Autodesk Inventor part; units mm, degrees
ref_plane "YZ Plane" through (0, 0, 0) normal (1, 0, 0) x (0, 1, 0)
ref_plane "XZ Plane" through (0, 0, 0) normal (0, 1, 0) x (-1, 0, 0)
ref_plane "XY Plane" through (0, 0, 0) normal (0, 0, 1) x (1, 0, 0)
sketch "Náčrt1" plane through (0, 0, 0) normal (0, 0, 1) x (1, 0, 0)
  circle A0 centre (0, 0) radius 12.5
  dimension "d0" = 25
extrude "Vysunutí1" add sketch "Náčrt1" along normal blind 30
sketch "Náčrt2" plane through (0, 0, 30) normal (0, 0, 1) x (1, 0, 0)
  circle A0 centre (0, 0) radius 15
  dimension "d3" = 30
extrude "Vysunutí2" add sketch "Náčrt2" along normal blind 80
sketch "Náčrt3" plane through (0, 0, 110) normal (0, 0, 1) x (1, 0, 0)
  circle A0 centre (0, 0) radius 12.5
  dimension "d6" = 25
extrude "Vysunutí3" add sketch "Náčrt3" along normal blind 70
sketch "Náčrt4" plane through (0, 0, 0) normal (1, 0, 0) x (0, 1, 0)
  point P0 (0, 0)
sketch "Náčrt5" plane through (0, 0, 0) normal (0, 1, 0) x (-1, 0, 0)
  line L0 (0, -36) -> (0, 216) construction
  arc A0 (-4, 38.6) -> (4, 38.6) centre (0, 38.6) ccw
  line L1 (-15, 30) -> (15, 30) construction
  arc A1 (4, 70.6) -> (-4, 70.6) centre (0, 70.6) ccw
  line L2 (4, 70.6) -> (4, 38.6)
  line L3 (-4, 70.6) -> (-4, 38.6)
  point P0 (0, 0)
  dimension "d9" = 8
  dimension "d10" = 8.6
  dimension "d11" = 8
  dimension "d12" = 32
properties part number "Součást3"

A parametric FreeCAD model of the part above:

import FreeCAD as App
import Part
import Sketcher
Q = App.Units.Quantity

doc = App.newDocument("Part")
params = doc.addObject("Spreadsheet::Sheet", "Params")
for row, (alias, value) in enumerate([
    ("sketch1_diameter", "25 mm"),
    ("pad1_length", "30 mm"),
    ("sketch2_diameter", "30 mm"),
    ("pad2_length", "80 mm"),
    ("sketch3_diameter", "25 mm"),
    ("pad3_length", "70 mm"),
], start=1):
    params.set(f"A{row}", alias)
    params.set(f"B{row}", "=" + value)
    params.setAlias(f"B{row}", alias)

body = doc.addObject("PartDesign::Body", "Body")

sketch1 = doc.addObject("Sketcher::SketchObject", "Sketch")
body.addObject(sketch1)
sketch1.AttachmentSupport = (doc.XY_Plane, [""])
sketch1.MapMode = "FlatFace"
sketch1.addGeometry(Part.Circle(App.Vector(0, 0, 0), App.Vector(0, 0, 1), 12.5), False)
sketch1.addConstraint([
    Sketcher.Constraint("Coincident", 0, 3, -1, 1),
    Sketcher.Constraint("Diameter", 0, Q("25 mm")),
])
sketch1.setExpression("Constraints[1]", "Params.sketch1_diameter")
pad1 = doc.addObject("PartDesign::Pad", "Pad")
body.addObject(pad1)
pad1.Profile = sketch1
pad1.setExpression("Length", "Params.pad1_length")

sketch2 = doc.addObject("Sketcher::SketchObject", "Sketch001")
body.addObject(sketch2)
sketch2.AttachmentSupport = (doc.XY_Plane, [""])
sketch2.MapMode = "FlatFace"
sketch2.AttachmentOffset = App.Placement(App.Vector(0, 0, 30), App.Rotation())
sketch2.addGeometry(Part.Circle(App.Vector(0, 0, 0), App.Vector(0, 0, 1), 15), False)
sketch2.addConstraint([
    Sketcher.Constraint("Coincident", 0, 3, -1, 1),
    Sketcher.Constraint("Diameter", 0, Q("30 mm")),
])
sketch2.setExpression("Constraints[1]", "Params.sketch2_diameter")
pad2 = doc.addObject("PartDesign::Pad", "Pad001")
body.addObject(pad2)
pad2.Profile = sketch2
pad2.setExpression("Length", "Params.pad2_length")

sketch3 = doc.addObject("Sketcher::SketchObject", "Sketch002")
body.addObject(sketch3)
sketch3.AttachmentSupport = (doc.XY_Plane, [""])
sketch3.MapMode = "FlatFace"
sketch3.AttachmentOffset = App.Placement(App.Vector(0, 0, 110), App.Rotation())
sketch3.addGeometry(Part.Circle(App.Vector(0, 0, 0), App.Vector(0, 0, 1), 12.5), False)
sketch3.addConstraint([
    Sketcher.Constraint("Coincident", 0, 3, -1, 1),
    Sketcher.Constraint("Diameter", 0, Q("25 mm")),
])
sketch3.setExpression("Constraints[1]", "Params.sketch3_diameter")
pad3 = doc.addObject("PartDesign::Pad", "Pad002")
body.addObject(pad3)
pad3.Profile = sketch3
pad3.setExpression("Length", "Params.pad3_length")

doc.recompute()
